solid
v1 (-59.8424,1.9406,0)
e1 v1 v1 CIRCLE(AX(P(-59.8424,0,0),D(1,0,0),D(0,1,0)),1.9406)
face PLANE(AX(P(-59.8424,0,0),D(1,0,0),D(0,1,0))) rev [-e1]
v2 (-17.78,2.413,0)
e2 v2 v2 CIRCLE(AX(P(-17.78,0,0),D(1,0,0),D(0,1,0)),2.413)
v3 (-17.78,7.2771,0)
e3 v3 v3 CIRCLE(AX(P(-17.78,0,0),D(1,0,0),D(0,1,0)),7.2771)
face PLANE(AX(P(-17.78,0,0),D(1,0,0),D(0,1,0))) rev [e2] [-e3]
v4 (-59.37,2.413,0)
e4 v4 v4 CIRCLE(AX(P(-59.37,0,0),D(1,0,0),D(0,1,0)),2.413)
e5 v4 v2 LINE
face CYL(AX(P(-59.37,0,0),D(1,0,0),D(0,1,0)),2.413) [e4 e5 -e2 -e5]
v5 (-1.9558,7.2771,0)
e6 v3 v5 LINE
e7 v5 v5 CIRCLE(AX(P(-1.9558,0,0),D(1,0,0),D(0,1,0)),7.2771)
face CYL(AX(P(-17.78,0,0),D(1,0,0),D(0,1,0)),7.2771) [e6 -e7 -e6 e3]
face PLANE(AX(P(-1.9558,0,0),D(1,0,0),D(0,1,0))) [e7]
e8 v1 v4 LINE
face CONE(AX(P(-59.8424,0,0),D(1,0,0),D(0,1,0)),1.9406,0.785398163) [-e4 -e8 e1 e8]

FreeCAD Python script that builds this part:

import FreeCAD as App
import Part
import Sketcher
Q = App.Units.Quantity


def add_polygon(sketch, points):
    """Adds a closed chain of lines whose ends are joined by coincident constraints."""
    first, n = sketch.GeometryCount, len(points)
    for a, b in zip(points, points[1:] + points[:1]):
        sketch.addGeometry(Part.LineSegment(App.Vector(*a, 0), App.Vector(*b, 0)), False)
    for i in range(n):
        sketch.addConstraint(Sketcher.Constraint("Coincident", first + i, 2, first + (i + 1) % n, 1))

doc = App.newDocument("Part")
body = doc.addObject("PartDesign::Body", "Body")

# Sketch on XY plane
sketch1 = doc.addObject("Sketcher::SketchObject", "Sketch")
body.addObject(sketch1)
sketch1.AttachmentSupport = (doc.XY_Plane, [""])
sketch1.MapMode = "FlatFace"
add_polygon(sketch1, [(-59.8, 0), (-9.5, 0), (-9.5, 2.4), (-59.4, 2.4), (-59.8, 1.9)])  # lines 0-4
sketch1.addConstraint(Sketcher.Constraint("Horizontal", 0))
sketch1.addConstraint(Sketcher.Constraint("Vertical", 1))
sketch1.addConstraint(Sketcher.Constraint("Horizontal", 2))
sketch1.addConstraint(Sketcher.Constraint("Vertical", 4))
sketch1.addConstraint(Sketcher.Constraint("PointOnObject", 0, 2, -1))
sketch1.addConstraint(Sketcher.Constraint("Angle", 3, Q("-135 deg")))
sketch1.addConstraint(Sketcher.Constraint("DistanceX", 0, 1, 0, 2, Q("1.981 in")))
sketch1.addConstraint(Sketcher.Constraint("DistanceY", 1, 1, 1, 2, Q("0.095 in")))
sketch1.addConstraint(Sketcher.Constraint("DistanceX", 2, 2, 2, 1, Q("1.9624 in")))
sketch1.addConstraint(Sketcher.Constraint("DistanceX", 0, 2, -1, 1, Q("0.375 in")))
revolution = doc.addObject("PartDesign::Revolution", "Revolution")
body.addObject(revolution)
revolution.Profile = sketch1
revolution.ReferenceAxis = (sketch1, ["H_Axis"])
revolution.Angle = 360

# Sketch on XY plane
sketch2 = doc.addObject("Sketcher::SketchObject", "Sketch001")
body.addObject(sketch2)
sketch2.AttachmentSupport = (doc.XY_Plane, [""])
sketch2.MapMode = "FlatFace"
add_polygon(sketch2, [(-18, 0), (-2, 0), (-2, 7), (-18, 7)])  # lines 0-3
sketch2.addConstraint(Sketcher.Constraint("Horizontal", 0))
sketch2.addConstraint(Sketcher.Constraint("Vertical", 1))
sketch2.addConstraint(Sketcher.Constraint("Horizontal", 2))
sketch2.addConstraint(Sketcher.Constraint("Vertical", 3))
sketch2.addConstraint(Sketcher.Constraint("PointOnObject", 0, 2, -1))
sketch2.addConstraint(Sketcher.Constraint("DistanceX", 2, 2, -1, 1, Q("0.7 in")))
sketch2.addConstraint(Sketcher.Constraint("DistanceX", 0, 1, 0, 2, Q("0.623 in")))
sketch2.addConstraint(Sketcher.Constraint("DistanceY", 1, 1, 1, 2, Q("0.2865 in")))
revolution2 = doc.addObject("PartDesign::Revolution", "Revolution001")
body.addObject(revolution2)
revolution2.Profile = sketch2
revolution2.ReferenceAxis = (sketch2, ["H_Axis"])
revolution2.Angle = 360

doc.recompute()
